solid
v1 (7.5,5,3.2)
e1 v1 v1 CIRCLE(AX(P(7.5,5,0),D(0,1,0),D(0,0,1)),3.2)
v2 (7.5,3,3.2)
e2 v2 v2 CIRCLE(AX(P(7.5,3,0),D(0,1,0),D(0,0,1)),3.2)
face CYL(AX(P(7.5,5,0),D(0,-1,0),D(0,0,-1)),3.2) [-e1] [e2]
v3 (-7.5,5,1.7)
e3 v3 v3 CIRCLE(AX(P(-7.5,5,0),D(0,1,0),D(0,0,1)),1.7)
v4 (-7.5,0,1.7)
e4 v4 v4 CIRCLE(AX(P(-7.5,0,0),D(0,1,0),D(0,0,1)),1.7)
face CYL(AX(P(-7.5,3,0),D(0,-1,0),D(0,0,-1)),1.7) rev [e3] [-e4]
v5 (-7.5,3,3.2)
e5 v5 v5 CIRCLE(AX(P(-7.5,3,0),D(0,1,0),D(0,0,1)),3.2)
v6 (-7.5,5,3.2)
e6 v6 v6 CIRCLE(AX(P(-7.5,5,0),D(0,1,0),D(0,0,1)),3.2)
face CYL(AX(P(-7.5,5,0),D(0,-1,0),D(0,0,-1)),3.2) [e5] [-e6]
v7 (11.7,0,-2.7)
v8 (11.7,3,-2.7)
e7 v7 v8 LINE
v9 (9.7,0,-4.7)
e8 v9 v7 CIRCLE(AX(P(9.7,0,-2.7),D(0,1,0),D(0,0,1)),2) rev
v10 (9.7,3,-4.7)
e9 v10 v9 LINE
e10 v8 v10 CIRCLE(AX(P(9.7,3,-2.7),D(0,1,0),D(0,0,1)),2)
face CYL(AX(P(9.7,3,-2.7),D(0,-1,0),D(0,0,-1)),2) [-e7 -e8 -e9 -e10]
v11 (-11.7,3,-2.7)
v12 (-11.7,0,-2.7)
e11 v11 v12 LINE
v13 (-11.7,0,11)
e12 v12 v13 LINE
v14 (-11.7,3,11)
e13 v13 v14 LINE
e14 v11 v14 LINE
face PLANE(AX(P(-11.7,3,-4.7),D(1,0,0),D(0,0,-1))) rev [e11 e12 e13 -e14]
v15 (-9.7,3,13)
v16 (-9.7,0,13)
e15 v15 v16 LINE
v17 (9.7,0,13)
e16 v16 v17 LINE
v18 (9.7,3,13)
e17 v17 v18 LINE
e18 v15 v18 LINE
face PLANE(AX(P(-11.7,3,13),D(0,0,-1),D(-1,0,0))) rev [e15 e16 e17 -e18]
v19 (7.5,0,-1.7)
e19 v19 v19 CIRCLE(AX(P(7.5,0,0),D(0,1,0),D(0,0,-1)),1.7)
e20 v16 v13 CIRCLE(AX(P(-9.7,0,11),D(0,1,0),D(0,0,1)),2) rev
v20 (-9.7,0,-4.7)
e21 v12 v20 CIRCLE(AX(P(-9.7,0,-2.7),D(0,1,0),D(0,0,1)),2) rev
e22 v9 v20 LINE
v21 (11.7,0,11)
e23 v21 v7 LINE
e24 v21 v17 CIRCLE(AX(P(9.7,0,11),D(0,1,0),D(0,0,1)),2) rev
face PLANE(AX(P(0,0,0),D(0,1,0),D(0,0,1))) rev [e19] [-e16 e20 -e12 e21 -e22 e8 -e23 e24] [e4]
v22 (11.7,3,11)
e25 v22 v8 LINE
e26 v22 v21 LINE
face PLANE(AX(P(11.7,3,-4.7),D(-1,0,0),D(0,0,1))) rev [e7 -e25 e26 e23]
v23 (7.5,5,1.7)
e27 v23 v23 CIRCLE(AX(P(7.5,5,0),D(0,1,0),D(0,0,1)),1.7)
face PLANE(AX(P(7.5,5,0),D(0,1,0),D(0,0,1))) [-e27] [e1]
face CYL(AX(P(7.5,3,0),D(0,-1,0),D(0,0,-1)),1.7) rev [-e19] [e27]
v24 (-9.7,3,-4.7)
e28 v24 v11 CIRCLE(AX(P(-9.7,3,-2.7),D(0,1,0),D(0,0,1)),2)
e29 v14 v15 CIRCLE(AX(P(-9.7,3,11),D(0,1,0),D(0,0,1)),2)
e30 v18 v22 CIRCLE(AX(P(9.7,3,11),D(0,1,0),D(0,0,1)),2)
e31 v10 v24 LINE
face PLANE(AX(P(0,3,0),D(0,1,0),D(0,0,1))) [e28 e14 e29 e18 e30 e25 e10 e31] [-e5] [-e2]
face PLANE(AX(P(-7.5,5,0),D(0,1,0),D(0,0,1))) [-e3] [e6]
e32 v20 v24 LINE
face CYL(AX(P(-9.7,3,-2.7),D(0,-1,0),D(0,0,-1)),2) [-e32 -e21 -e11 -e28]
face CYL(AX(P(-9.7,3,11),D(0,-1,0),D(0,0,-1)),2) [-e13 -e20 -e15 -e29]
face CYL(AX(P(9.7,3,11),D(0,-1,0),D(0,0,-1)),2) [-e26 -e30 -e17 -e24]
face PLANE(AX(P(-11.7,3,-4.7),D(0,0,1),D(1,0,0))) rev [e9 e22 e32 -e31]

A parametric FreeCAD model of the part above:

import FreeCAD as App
import Part
import Sketcher
Q = App.Units.Quantity


def edges_at(feature, points):
    """Names of the edges that pass closest to the given points."""
    edges = feature.Shape.Edges
    near = lambda p: min(range(len(edges)), key=lambda i: edges[i].distToShape(Part.Vertex(*p))[0])
    return sorted({f"Edge{near(p) + 1}" for p in points})


def add_polygon(sketch, points):
    """Adds a closed chain of lines whose ends are joined by coincident constraints."""
    first, n = sketch.GeometryCount, len(points)
    for a, b in zip(points, points[1:] + points[:1]):
        sketch.addGeometry(Part.LineSegment(App.Vector(*a, 0), App.Vector(*b, 0)), False)
    for i in range(n):
        sketch.addConstraint(Sketcher.Constraint("Coincident", first + i, 2, first + (i + 1) % n, 1))

doc = App.newDocument("Part")
body = doc.addObject("PartDesign::Body", "Body")

# Sketch on XZ plane
sketch1 = body.newObject("Sketcher::SketchObject", "Sketch")
sketch1.AttachmentSupport = (doc.getObject("XZ_Plane"), [""])
sketch1.MapMode = "FlatFace"
add_polygon(sketch1, [(-11.7, -4.7), (-11.7, 13), (11.7, 13), (11.7, -4.7)])  # lines 0-3
sketch1.addGeometry(Part.Circle(App.Vector(-7.5, 0, 0), App.Vector(0, 0, 1), 1.7), False)  # 4
sketch1.addGeometry(Part.Circle(App.Vector(7.5, 0, 0), App.Vector(0, 0, 1), 1.7), False)  # 5
sketch1.addConstraint([
    Sketcher.Constraint("Vertical", 0),
    Sketcher.Constraint("Horizontal", 1),
    Sketcher.Constraint("Vertical", 2),
    Sketcher.Constraint("Horizontal", 3),
    Sketcher.Constraint("Equal", 4, 5),
    Sketcher.Constraint("Symmetric", 4, 3, 5, 3, -1, 1),
    Sketcher.Constraint("PointOnObject", 4, 3, -1),
    Sketcher.Constraint("Diameter", 4, Q("3.4 mm")),
    Sketcher.Constraint("DistanceX", 1, 1, 1, 2, Q("23.4 mm")),
    Sketcher.Constraint("DistanceY", 0, 1, 0, 2, Q("17.7 mm")),
    Sketcher.Constraint("DistanceY", -1, 1, 0, 2, Q("13 mm")),
    Sketcher.Constraint("DistanceX", 4, 3, 5, 3, Q("15 mm")),
    Sketcher.Constraint("DistanceX", 0, 2, -1, 1, Q("11.7 mm")),
])
pad1 = body.newObject("PartDesign::Pad", "Pad")
pad1.Profile = sketch1
pad1.Length = 3
pad1.Reversed = True

# Sketch on XZ plane
sketch2 = body.newObject("Sketcher::SketchObject", "Sketch001")
sketch2.AttachmentSupport = (doc.getObject("XZ_Plane"), [""])
sketch2.MapMode = "FlatFace"
sketch2.AttachmentOffset = App.Placement(App.Vector(0, 0, -3), App.Rotation())
sketch2.addGeometry([
    Part.Circle(App.Vector(-7.5, 0, 0), App.Vector(0, 0, 1), 3.2),
    Part.Circle(App.Vector(-7.5, 0, 0), App.Vector(0, 0, 1), 1.7),
    Part.Circle(App.Vector(7.5, 0, 0), App.Vector(0, 0, 1), 3.2),
    Part.Circle(App.Vector(7.5, 0, 0), App.Vector(0, 0, 1), 1.7),
], False)
sketch2.addConstraint([
    Sketcher.Constraint("Coincident", 1, 3, 0, 3),
    Sketcher.Constraint("Coincident", 3, 3, 2, 3),
    Sketcher.Constraint("Equal", 0, 2),
    Sketcher.Constraint("Equal", 1, 3),
    Sketcher.Constraint("Symmetric", 0, 3, 2, 3, -1, 1),
    Sketcher.Constraint("PointOnObject", 0, 3, -1),
    Sketcher.Constraint("Diameter", 0, Q("6.4 mm")),
    Sketcher.Constraint("Diameter", 1, Q("3.4 mm")),
    Sketcher.Constraint("DistanceX", 0, 3, 2, 3, Q("15 mm")),
])
pad2 = body.newObject("PartDesign::Pad", "Pad001")
pad2.Profile = sketch2
pad2.Length = 2
pad2.Reversed = True
doc.recompute()

fillet = body.newObject("PartDesign::Fillet", "Fillet")
fillet.Base = (pad2, edges_at(pad2, [
    (-11.7, 1.5, -4.7),
    (11.7, 1.5, -4.7),
    (11.7, 1.5, 13),
    (-11.7, 1.5, 13),
]))
fillet.Radius = 2

doc.recompute()
